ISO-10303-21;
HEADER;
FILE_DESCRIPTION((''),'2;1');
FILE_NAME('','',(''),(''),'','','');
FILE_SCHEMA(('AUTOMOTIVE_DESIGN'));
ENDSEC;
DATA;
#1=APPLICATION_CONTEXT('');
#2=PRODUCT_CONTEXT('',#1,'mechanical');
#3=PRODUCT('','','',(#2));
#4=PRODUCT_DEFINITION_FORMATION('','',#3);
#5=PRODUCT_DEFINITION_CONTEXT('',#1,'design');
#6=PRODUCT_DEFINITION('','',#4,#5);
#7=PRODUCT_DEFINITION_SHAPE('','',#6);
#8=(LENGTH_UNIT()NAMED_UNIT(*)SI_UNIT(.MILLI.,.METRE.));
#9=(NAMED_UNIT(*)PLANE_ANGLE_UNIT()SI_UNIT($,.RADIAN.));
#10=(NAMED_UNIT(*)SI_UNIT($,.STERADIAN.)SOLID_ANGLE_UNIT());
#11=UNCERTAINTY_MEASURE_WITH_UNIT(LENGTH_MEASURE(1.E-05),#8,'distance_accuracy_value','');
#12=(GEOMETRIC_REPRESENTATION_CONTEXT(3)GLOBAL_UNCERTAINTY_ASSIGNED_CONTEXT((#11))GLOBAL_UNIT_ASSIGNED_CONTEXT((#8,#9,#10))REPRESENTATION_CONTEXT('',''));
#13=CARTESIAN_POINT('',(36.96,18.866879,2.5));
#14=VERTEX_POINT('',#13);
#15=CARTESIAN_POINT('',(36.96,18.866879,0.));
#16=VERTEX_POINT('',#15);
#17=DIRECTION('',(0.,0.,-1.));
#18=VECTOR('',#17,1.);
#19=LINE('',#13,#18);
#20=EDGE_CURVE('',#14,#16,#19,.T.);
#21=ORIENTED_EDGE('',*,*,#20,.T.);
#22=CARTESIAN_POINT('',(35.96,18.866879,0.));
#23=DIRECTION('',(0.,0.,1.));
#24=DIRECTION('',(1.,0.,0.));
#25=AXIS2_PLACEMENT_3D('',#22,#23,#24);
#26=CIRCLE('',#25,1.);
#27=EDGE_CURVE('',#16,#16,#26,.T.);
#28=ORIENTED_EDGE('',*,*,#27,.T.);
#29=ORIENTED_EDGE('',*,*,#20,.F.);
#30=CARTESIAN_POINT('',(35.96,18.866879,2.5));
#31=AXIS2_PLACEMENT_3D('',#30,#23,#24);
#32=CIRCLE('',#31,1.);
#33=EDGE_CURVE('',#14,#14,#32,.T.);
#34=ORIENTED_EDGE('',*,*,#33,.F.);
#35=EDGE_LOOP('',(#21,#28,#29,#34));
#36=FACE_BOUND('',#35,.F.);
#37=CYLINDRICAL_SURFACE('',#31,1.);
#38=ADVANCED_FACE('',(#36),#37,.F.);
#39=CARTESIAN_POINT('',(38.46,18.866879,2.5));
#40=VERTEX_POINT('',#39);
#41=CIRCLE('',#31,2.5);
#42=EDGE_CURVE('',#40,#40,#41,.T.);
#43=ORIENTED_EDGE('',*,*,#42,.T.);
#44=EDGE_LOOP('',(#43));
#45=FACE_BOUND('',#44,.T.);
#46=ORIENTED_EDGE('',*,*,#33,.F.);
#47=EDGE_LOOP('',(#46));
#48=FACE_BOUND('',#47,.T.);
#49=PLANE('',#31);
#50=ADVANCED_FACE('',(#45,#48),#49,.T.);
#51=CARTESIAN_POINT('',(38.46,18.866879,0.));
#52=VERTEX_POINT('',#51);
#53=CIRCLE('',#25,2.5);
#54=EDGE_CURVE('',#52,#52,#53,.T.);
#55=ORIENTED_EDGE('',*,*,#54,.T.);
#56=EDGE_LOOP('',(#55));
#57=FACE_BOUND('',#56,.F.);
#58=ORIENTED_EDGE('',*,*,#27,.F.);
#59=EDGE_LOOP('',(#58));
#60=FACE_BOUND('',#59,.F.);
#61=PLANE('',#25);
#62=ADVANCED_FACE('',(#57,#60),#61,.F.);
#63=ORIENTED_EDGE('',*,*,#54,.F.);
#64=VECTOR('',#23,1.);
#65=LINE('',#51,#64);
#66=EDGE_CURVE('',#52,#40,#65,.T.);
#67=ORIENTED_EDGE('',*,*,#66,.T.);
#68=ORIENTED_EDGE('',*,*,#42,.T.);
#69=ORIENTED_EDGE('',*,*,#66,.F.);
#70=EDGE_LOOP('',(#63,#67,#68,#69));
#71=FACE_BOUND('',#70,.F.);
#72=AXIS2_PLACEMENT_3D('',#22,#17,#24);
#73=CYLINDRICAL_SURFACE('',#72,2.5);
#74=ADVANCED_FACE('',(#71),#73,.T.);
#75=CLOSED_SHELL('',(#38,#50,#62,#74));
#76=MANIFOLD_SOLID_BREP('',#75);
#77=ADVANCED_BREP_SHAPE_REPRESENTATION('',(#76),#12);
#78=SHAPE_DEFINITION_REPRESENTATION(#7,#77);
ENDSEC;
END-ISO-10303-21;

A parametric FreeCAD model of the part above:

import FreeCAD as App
import Part
import Sketcher

doc = App.newDocument("Part")
body = doc.addObject("PartDesign::Body", "Body")

# Sketch on XY plane
sketch1 = doc.addObject("Sketcher::SketchObject", "Sketch")
body.addObject(sketch1)
sketch1.AttachmentSupport = (doc.XY_Plane, [""])
sketch1.MapMode = "FlatFace"
sketch1.addGeometry(Part.Circle(App.Vector(35.96, 18.866879, 0), App.Vector(0, 0, 1), 2.5), False)
sketch1.addConstraint(Sketcher.Constraint("Diameter", 0, 5.0))
sketch1.addConstraint(Sketcher.Constraint("DistanceX", -1, 1, 0, 3, 35.96))
sketch1.addConstraint(Sketcher.Constraint("DistanceY", -1, 1, 0, 3, 18.866879))
pad1 = doc.addObject("PartDesign::Pad", "Pad")
body.addObject(pad1)
pad1.Profile = sketch1
pad1.Length = 2.5

# Sketch on XY plane
sketch2 = doc.addObject("Sketcher::SketchObject", "Sketch001")
body.addObject(sketch2)
sketch2.AttachmentSupport = (doc.XY_Plane, [""])
sketch2.MapMode = "FlatFace"
sketch2.AttachmentOffset = App.Placement(App.Vector(0, 0, 2.5), App.Rotation())
sketch2.addGeometry(Part.Circle(App.Vector(35.96, 18.866879, 0), App.Vector(0, 0, 1), 1), False)
sketch2.addConstraint(Sketcher.Constraint("Diameter", 0, 2.0))
sketch2.addConstraint(Sketcher.Constraint("DistanceX", -1, 1, 0, 3, 35.96))
sketch2.addConstraint(Sketcher.Constraint("DistanceY", -1, 1, 0, 3, 18.866879))
pocket1 = doc.addObject("PartDesign::Pocket", "Pocket")
body.addObject(pocket1)
pocket1.Profile = sketch2
pocket1.Length = 10

doc.recompute()
